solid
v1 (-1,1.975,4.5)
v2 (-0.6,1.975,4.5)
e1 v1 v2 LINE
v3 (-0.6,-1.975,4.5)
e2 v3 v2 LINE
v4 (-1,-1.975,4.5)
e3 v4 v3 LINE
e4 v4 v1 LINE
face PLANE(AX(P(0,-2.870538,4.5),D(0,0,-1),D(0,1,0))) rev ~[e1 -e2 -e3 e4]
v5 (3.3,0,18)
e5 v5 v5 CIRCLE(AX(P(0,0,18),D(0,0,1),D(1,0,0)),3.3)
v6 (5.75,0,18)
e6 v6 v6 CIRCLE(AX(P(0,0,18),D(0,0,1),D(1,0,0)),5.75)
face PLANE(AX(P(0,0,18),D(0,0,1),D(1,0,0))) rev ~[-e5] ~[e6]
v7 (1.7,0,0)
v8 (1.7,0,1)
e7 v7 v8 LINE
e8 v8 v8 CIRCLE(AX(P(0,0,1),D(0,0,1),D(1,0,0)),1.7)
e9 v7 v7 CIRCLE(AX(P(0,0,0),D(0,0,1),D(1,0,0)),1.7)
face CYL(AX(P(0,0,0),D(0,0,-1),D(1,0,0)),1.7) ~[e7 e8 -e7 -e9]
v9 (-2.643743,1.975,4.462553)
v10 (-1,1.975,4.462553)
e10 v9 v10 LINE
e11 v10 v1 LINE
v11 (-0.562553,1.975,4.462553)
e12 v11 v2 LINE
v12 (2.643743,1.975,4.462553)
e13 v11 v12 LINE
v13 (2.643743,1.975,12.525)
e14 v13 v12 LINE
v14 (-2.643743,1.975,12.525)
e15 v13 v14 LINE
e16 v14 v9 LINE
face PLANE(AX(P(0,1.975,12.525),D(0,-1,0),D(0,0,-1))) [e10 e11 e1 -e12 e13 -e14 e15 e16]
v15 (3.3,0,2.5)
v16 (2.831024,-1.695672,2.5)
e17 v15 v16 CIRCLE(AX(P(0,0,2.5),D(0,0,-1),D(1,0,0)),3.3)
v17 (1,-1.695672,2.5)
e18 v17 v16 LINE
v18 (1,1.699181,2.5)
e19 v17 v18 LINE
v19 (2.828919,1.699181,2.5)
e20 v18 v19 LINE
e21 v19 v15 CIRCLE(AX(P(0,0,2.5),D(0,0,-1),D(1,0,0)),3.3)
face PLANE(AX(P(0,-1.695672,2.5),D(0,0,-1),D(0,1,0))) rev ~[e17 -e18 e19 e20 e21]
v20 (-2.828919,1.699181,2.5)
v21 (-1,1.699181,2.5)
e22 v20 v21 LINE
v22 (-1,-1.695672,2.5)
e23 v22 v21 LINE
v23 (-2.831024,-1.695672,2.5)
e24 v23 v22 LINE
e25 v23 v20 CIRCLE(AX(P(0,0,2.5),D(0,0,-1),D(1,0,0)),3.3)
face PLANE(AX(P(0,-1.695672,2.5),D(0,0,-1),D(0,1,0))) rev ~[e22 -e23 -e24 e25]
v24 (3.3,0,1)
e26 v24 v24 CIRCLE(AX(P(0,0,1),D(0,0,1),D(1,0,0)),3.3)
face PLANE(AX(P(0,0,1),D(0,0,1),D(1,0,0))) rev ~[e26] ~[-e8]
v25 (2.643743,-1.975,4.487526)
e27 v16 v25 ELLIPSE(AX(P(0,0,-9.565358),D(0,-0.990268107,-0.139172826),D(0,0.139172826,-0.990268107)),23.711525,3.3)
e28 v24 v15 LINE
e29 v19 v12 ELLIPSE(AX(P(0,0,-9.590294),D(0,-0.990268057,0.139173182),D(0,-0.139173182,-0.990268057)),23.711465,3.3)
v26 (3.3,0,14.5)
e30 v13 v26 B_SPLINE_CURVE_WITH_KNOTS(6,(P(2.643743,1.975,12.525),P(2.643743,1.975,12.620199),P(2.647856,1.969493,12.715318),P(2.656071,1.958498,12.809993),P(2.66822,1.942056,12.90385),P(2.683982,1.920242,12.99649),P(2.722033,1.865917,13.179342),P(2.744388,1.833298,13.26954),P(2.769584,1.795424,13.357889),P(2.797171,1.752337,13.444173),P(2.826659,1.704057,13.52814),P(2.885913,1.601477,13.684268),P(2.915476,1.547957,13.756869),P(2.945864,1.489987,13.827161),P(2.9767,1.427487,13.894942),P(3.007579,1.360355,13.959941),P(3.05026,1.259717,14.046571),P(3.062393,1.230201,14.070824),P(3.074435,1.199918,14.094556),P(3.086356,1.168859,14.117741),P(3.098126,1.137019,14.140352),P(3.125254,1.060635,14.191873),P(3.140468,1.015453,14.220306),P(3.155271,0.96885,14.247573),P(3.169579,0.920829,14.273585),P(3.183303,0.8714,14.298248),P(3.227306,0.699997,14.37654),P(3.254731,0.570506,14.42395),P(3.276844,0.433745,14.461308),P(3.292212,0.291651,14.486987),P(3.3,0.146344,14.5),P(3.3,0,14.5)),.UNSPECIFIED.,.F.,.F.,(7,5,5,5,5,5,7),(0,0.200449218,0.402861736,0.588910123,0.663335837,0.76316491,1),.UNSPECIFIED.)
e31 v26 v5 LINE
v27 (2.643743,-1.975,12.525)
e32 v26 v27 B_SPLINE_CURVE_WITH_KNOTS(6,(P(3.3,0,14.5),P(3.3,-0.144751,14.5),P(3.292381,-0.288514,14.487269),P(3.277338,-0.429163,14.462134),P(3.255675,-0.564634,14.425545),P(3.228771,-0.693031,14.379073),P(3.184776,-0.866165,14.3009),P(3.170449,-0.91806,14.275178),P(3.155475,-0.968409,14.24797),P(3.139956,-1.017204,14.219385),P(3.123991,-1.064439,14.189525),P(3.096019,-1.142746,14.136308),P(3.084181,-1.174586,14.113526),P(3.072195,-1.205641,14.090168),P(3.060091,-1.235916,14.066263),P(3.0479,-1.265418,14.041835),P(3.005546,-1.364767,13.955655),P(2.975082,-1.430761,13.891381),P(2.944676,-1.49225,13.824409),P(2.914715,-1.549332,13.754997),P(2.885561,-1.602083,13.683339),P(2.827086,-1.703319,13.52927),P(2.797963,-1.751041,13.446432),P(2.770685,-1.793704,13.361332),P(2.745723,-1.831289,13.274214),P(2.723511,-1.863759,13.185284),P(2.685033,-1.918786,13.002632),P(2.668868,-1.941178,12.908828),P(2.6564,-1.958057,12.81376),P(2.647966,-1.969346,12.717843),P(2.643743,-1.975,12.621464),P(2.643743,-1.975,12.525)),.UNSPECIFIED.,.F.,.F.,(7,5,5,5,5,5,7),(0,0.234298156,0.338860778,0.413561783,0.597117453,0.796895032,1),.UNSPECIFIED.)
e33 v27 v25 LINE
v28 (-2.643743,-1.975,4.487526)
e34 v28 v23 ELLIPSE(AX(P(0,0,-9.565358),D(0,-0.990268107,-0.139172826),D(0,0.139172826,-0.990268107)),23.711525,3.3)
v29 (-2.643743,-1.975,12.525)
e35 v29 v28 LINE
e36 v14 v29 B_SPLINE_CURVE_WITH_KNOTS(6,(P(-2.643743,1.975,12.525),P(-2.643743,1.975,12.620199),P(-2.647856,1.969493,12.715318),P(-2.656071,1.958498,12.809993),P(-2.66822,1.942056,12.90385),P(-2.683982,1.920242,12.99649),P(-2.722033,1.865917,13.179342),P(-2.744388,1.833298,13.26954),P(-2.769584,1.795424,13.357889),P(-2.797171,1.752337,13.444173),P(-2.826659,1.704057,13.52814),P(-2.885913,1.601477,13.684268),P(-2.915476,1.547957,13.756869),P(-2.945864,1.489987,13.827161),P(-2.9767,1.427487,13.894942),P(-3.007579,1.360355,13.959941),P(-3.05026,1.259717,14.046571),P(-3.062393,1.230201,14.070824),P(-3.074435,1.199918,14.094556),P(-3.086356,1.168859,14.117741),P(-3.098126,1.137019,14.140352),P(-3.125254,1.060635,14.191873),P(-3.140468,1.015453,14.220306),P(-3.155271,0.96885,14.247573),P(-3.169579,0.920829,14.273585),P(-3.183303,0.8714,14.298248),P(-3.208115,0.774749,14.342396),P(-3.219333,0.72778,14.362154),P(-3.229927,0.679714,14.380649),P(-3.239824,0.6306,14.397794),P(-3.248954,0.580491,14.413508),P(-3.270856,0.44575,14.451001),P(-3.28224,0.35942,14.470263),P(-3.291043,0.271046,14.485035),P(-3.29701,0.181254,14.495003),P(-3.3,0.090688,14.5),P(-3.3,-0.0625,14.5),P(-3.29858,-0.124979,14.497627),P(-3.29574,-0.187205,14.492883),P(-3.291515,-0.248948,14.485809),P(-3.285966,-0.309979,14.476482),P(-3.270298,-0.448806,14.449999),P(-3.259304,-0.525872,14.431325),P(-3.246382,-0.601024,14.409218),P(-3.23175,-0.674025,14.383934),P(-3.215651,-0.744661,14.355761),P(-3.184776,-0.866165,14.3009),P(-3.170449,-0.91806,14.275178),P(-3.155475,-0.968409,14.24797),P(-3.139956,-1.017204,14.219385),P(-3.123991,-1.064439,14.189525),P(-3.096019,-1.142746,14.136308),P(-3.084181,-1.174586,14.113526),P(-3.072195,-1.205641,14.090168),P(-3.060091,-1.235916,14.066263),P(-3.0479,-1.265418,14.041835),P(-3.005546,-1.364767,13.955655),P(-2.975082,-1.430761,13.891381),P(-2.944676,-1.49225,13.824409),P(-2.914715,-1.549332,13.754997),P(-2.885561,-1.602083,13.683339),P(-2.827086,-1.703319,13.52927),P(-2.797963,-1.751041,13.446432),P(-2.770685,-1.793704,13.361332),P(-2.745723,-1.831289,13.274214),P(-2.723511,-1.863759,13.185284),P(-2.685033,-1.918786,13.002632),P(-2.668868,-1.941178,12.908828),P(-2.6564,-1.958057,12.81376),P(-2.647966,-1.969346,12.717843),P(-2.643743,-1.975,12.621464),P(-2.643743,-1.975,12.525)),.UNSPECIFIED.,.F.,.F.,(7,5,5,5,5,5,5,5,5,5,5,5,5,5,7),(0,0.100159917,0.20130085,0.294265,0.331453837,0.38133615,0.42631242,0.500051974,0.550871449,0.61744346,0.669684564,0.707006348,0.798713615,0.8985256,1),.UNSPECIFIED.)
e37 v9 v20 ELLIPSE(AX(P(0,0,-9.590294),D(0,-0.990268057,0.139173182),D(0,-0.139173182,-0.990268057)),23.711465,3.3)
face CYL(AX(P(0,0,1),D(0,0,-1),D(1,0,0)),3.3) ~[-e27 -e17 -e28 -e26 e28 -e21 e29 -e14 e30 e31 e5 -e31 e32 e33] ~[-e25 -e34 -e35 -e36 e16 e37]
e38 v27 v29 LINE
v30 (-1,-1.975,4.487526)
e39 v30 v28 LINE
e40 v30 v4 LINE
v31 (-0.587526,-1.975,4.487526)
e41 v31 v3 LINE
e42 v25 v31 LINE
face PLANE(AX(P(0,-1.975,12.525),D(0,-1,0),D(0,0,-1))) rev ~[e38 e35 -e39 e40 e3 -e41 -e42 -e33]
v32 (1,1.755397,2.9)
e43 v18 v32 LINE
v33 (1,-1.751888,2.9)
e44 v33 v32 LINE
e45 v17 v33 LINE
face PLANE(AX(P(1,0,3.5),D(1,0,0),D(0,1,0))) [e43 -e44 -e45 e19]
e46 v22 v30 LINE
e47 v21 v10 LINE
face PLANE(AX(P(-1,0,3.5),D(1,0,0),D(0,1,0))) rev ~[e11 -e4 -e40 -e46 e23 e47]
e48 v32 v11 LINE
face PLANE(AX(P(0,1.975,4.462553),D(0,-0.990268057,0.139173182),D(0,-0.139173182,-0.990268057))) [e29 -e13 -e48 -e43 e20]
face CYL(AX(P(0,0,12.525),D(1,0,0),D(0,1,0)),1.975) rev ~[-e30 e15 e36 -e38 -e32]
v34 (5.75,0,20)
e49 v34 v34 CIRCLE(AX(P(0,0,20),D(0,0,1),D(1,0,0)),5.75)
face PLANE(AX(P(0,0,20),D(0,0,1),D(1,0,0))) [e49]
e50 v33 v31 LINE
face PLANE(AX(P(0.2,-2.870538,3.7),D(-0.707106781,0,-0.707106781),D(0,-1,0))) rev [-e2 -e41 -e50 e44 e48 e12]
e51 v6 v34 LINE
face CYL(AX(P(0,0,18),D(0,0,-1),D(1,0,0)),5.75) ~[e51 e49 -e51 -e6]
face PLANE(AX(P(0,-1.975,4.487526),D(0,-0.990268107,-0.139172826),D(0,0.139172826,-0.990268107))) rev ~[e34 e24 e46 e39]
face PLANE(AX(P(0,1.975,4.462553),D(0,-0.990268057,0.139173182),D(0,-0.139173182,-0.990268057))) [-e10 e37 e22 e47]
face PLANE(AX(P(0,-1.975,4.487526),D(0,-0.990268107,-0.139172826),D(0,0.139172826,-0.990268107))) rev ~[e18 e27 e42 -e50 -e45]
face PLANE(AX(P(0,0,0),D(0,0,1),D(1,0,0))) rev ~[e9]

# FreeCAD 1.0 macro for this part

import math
import FreeCAD as App
import Part
import Sketcher
Q = App.Units.Quantity


def edges_at(feature, points):
    """Names of the edges that pass closest to the given points."""
    edges = feature.Shape.Edges
    near = lambda p: min(range(len(edges)), key=lambda i: edges[i].distToShape(Part.Vertex(*p))[0])
    return sorted({f"Edge{near(p) + 1}" for p in points})

doc = App.newDocument("Part")
body = doc.addObject("PartDesign::Body", "Body")

# Sketch on YZ plane
sketch1 = body.newObject("Sketcher::SketchObject", "Sketch")
sketch1.AttachmentSupport = (doc.getObject("YZ_Plane"), [""])
sketch1.MapMode = "FlatFace"
sketch1.addGeometry([
    Part.LineSegment(App.Vector(-2.870538, 4.5, 0), App.Vector(-2.870538, 2.5, 0)),
    Part.LineSegment(App.Vector(-2.870538, 2.5, 0), App.Vector(2.870538, 2.5, 0)),
    Part.LineSegment(App.Vector(2.870538, 2.5, 0), App.Vector(2.870538, 4.5, 0)),
    Part.LineSegment(App.Vector(2.870538, 4.5, 0), App.Vector(-2.870538, 4.5, 0)),
], False)
sketch1.addConstraint([
    Sketcher.Constraint("Coincident", 0, 2, 1, 1),
    Sketcher.Constraint("Coincident", 1, 2, 2, 1),
    Sketcher.Constraint("Coincident", 2, 2, 3, 1),
    Sketcher.Constraint("Coincident", 3, 2, 0, 1),
    Sketcher.Constraint("Vertical", 0),
    Sketcher.Constraint("Horizontal", 1),
    Sketcher.Constraint("Vertical", 2),
    Sketcher.Constraint("Horizontal", 3),
    Sketcher.Constraint("DistanceY", 0, 2, 0, 1, 2.0),
    Sketcher.Constraint("DistanceY", -1, 1, 0, 2, 2.5),
    Sketcher.Constraint("DistanceX", 1, 1, 1, 2, 5.741076),
    Sketcher.Constraint("DistanceX", 0, 2, -1, 1, 2.870538),
])
pad1 = body.newObject("PartDesign::Pad", "Pad")
pad1.Profile = sketch1
pad1.Length = 2
pad1.Midplane = True
doc.recompute()

chamfer = body.newObject("PartDesign::Chamfer", "Chamfer")
chamfer.Base = (pad1, edges_at(pad1, [(1, 0, 4.5)]))
chamfer.Size = 1.6
body2 = doc.addObject("PartDesign::Body", "Body001")

# Sketch on YZ plane
sketch2 = body2.newObject("Sketcher::SketchObject", "Sketch001")
sketch2.AttachmentSupport = (doc.getObject("YZ_Plane001"), [""])
sketch2.MapMode = "FlatFace"
sketch2.addGeometry([
    Part.LineSegment(App.Vector(-1.975, 4.487526, 0), App.Vector(-1.695672, 2.5, 0)),  # 0
    Part.LineSegment(App.Vector(-1.695672, 2.5, 0), App.Vector(1.699181, 2.5, 0)),  # 1
    Part.LineSegment(App.Vector(1.699181, 2.5, 0), App.Vector(1.975, 4.462553, 0)),  # 2
    Part.LineSegment(App.Vector(1.975, 4.462553, 0), App.Vector(1.975, 12.525, 0)),  # 3
    Part.ArcOfCircle(Part.Circle(App.Vector(0, 12.525, 0), App.Vector(0, 0, 1), 1.975), math.radians(0), math.radians(180)),  # 4
    Part.LineSegment(App.Vector(-1.975, 12.525, 0), App.Vector(-1.975, 4.487526, 0)),  # 5
], False)
sketch2.addConstraint([
    Sketcher.Constraint("Coincident", 0, 2, 1, 1),
    Sketcher.Constraint("Coincident", 1, 2, 2, 1),
    Sketcher.Constraint("Coincident", 2, 2, 3, 1),
    Sketcher.Constraint("Tangent", 3, 2, 4, 1),
    Sketcher.Constraint("Tangent", 4, 2, 5, 1),
    Sketcher.Constraint("Coincident", 5, 2, 0, 1),
    Sketcher.Constraint("Horizontal", 1),
    Sketcher.Constraint("Vertical", 3),
    Sketcher.Constraint("Vertical", 5),
    Sketcher.Constraint("PointOnObject", 4, 3, -2),
    Sketcher.Constraint("Angle", 0, Q("-82.000016 deg")),
    Sketcher.Constraint("Angle", 2, Q("81.999995 deg")),
    Sketcher.Constraint("Radius", 4, 1.975),
    Sketcher.Constraint("DistanceY", -1, 1, 0, 2, 2.5),
    Sketcher.Constraint("DistanceY", -1, 1, 4, 3, 12.525),
    Sketcher.Constraint("Distance", 0, 2.007058),
    Sketcher.Constraint("Distance", 2, 1.98184),
])
pad2 = body2.newObject("PartDesign::Pad", "Pad001")
pad2.Profile = sketch2
pad2.Length = 15
pad2.Midplane = True
body3 = doc.addObject("PartDesign::Body", "Body002")

# Sketch on XY plane
sketch3 = body3.newObject("Sketcher::SketchObject", "Sketch002")
sketch3.AttachmentSupport = (doc.getObject("XY_Plane002"), [""])
sketch3.MapMode = "FlatFace"
sketch3.AttachmentOffset = App.Placement(App.Vector(0, 0, 1), App.Rotation())
sketch3.addGeometry(Part.Circle(App.Vector(0, 0, 0), App.Vector(0, 0, 1), 3.3), False)
sketch3.addConstraint([
    Sketcher.Constraint("Coincident", 0, 3, -1, 1),
    Sketcher.Constraint("Diameter", 0, 6.6),
])
pad3 = body3.newObject("PartDesign::Pad", "Pad002")
pad3.Profile = sketch3
pad3.Length = 17
body4 = doc.addObject("PartDesign::Body", "Body003")

# Sketch on XY plane
sketch4 = body4.newObject("Sketcher::SketchObject", "Sketch003")
sketch4.AttachmentSupport = (doc.getObject("XY_Plane003"), [""])
sketch4.MapMode = "FlatFace"
sketch4.AttachmentOffset = App.Placement(App.Vector(0, 0, 18), App.Rotation())
sketch4.addGeometry(Part.Circle(App.Vector(0, 0, 0), App.Vector(0, 0, 1), 5.75), False)
sketch4.addConstraint([
    Sketcher.Constraint("Coincident", 0, 3, -1, 1),
    Sketcher.Constraint("Diameter", 0, 11.5),
])
pad4 = body4.newObject("PartDesign::Pad", "Pad003")
pad4.Profile = sketch4
pad4.Length = 2
body5 = doc.addObject("PartDesign::Body", "Body004")

# Sketch on XY plane
sketch5 = body5.newObject("Sketcher::SketchObject", "Sketch004")
sketch5.AttachmentSupport = (doc.getObject("XY_Plane004"), [""])
sketch5.MapMode = "FlatFace"
sketch5.addGeometry(Part.Circle(App.Vector(0, 0, 0), App.Vector(0, 0, 1), 1.7), False)
sketch5.addConstraint([
    Sketcher.Constraint("Coincident", 0, 3, -1, 1),
    Sketcher.Constraint("Diameter", 0, 3.4),
])
pad5 = body5.newObject("PartDesign::Pad", "Pad004")
pad5.Profile = sketch5
pad5.Length = 1
doc.recompute()

boolean = body5.newObject("PartDesign::Boolean", "Boolean")
boolean.Type = "Fuse"
boolean.addObjects([body3])
doc.recompute()

boolean2 = body5.newObject("PartDesign::Boolean", "Boolean001")
boolean2.Type = "Fuse"
boolean2.addObjects([body4])
doc.recompute()

boolean3 = body5.newObject("PartDesign::Boolean", "Boolean002")
boolean3.Type = "Cut"
boolean3.addObjects([body2])
doc.recompute()

boolean4 = body5.newObject("PartDesign::Boolean", "Boolean003")
boolean4.Type = "Fuse"
boolean4.addObjects([body])

doc.recompute()
